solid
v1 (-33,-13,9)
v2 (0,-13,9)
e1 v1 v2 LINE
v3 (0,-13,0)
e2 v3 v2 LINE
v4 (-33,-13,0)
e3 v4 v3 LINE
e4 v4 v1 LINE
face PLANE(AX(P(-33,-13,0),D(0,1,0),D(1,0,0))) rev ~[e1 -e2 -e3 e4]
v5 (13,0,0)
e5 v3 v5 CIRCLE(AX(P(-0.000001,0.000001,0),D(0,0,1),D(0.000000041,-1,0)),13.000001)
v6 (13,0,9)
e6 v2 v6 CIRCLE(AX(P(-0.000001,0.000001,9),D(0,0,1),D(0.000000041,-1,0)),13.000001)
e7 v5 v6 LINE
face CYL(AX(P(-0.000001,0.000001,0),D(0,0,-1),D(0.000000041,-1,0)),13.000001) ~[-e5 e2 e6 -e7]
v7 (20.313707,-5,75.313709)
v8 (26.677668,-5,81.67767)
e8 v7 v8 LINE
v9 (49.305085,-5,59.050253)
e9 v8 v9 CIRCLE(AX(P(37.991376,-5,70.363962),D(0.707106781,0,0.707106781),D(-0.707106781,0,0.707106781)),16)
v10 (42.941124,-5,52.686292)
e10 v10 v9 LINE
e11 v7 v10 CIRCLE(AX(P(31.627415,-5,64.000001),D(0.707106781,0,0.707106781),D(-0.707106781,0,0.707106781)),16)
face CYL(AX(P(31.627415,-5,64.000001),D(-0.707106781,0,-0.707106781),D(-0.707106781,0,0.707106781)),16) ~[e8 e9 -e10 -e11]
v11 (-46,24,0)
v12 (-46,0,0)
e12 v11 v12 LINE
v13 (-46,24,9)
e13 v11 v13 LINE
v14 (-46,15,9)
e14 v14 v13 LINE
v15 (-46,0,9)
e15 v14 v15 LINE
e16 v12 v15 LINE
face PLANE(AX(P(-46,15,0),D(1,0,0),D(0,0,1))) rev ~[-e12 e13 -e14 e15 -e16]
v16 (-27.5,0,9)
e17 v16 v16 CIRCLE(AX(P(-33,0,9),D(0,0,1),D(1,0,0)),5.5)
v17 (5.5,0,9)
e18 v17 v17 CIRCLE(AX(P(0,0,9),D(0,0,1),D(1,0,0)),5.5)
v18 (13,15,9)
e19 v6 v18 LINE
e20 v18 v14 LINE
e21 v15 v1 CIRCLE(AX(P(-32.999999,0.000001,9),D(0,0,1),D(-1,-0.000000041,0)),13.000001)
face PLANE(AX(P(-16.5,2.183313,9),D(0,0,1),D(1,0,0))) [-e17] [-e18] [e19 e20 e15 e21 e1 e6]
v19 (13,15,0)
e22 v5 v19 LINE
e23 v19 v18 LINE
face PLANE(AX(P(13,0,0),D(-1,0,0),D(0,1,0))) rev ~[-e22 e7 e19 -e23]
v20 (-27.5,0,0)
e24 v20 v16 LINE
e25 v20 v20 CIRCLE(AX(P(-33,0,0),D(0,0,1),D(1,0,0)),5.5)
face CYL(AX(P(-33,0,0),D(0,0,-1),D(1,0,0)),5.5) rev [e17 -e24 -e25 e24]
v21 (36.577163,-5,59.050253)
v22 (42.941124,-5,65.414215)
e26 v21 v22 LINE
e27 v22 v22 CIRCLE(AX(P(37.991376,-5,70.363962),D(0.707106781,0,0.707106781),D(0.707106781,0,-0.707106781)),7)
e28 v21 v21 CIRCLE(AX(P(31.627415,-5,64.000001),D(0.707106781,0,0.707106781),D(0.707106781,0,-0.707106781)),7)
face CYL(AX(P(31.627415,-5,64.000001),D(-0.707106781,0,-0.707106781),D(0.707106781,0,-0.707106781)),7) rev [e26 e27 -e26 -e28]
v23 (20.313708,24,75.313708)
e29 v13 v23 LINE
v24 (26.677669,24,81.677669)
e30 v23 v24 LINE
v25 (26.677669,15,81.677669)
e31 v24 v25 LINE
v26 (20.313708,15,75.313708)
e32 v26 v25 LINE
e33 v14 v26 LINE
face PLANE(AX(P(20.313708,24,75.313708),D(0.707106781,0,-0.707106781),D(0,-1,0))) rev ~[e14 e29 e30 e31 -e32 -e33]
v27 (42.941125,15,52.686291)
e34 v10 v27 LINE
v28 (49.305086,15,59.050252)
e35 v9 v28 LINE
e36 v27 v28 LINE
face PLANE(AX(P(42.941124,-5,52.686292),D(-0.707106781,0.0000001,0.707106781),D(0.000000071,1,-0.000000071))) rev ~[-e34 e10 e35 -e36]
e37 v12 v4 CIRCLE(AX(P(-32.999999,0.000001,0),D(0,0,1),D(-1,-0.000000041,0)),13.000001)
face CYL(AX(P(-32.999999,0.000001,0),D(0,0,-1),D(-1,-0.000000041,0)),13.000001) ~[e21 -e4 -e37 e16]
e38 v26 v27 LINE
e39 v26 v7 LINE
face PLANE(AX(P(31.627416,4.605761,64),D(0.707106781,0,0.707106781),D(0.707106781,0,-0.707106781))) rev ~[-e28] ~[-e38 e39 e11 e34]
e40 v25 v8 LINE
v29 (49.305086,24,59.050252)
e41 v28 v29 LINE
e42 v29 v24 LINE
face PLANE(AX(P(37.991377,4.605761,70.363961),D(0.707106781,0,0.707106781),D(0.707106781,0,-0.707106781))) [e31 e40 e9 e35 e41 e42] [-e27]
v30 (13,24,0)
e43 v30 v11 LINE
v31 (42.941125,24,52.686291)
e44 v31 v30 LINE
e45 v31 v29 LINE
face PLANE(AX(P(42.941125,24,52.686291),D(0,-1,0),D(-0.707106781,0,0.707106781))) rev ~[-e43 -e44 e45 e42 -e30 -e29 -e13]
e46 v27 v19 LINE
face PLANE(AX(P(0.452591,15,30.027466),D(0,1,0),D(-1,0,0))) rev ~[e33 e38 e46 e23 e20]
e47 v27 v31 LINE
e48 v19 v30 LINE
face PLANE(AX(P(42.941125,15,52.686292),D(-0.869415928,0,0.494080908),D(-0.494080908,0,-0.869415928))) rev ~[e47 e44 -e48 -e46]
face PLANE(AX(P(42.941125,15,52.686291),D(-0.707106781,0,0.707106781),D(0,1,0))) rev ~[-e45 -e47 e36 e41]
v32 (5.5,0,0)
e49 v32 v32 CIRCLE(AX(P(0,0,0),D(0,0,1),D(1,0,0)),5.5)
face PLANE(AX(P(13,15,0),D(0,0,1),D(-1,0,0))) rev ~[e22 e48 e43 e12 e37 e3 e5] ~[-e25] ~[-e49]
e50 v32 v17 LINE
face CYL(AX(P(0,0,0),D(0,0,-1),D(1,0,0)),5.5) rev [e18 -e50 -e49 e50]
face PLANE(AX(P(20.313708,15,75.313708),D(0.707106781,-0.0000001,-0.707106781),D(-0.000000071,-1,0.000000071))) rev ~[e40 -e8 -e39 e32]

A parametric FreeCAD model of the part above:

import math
import FreeCAD as App
import Part
import Sketcher

V = App.Vector
Q = App.Units.Quantity

doc = App.newDocument("Part")
body = doc.addObject("PartDesign::Body", "Body")

# Sketch on XY plane
sketch1 = doc.addObject("Sketcher::SketchObject", "Sketch")
body.addObject(sketch1)
sketch1.AttachmentSupport = (doc.XY_Plane, [""])
sketch1.MapMode = "FlatFace"
sketch1.addGeometry(Part.LineSegment(V(-46, 15, 0), V(-46, 0, 0)), False)
sketch1.addGeometry(Part.ArcOfCircle(Part.Circle(V(-32.999999, 0.000001, 0), V(0, 0, 1), 13.000001), math.radians(-179.999998), math.radians(-90.000002)), False)
sketch1.addGeometry(Part.LineSegment(V(-33, -13, 0), V(0, -13, 0)), False)
sketch1.addGeometry(Part.ArcOfCircle(Part.Circle(V(-0.000001, 0.000001, 0), V(0, 0, 1), 13.000001), math.radians(-89.999998), math.radians(-0.000002)), False)
sketch1.addGeometry(Part.LineSegment(V(13, 0, 0), V(13, 15, 0)), False)
sketch1.addGeometry(Part.LineSegment(V(13, 15, 0), V(-46, 15, 0)), False)
sketch1.addGeometry(Part.Circle(V(-33, 0, 0), V(0, 0, 1), 5.5), False)
sketch1.addGeometry(Part.Circle(V(0, 0, 0), V(0, 0, 1), 5.5), False)
sketch1.addConstraint(Sketcher.Constraint("Tangent", 0, 2, 1, 1))
sketch1.addConstraint(Sketcher.Constraint("Tangent", 1, 2, 2, 1))
sketch1.addConstraint(Sketcher.Constraint("Tangent", 2, 2, 3, 1))
sketch1.addConstraint(Sketcher.Constraint("Tangent", 3, 2, 4, 1))
sketch1.addConstraint(Sketcher.Constraint("Coincident", 4, 2, 5, 1))
sketch1.addConstraint(Sketcher.Constraint("Coincident", 5, 2, 0, 1))
sketch1.addConstraint(Sketcher.Constraint("Vertical", 0))
sketch1.addConstraint(Sketcher.Constraint("Horizontal", 2))
sketch1.addConstraint(Sketcher.Constraint("Vertical", 4))
sketch1.addConstraint(Sketcher.Constraint("Horizontal", 5))
sketch1.addConstraint(Sketcher.Constraint("Coincident", 3, 3, -1, 1))
sketch1.addConstraint(Sketcher.Constraint("Coincident", 7, 3, -1, 1))
sketch1.addConstraint(Sketcher.Constraint("Coincident", 6, 3, 1, 3))
sketch1.addConstraint(Sketcher.Constraint("Equal", 1, 3))
sketch1.addConstraint(Sketcher.Constraint("Equal", 6, 7))
sketch1.addConstraint(Sketcher.Constraint("Diameter", 6, 11.0))
sketch1.addConstraint(Sketcher.Constraint("Radius", 1, 13.000001))
sketch1.addConstraint(Sketcher.Constraint("DistanceX", 2, 1, 2, 2, 33.0))
sketch1.addConstraint(Sketcher.Constraint("DistanceY", 0, 2, 0, 1, 15.0))
pad1 = doc.addObject("PartDesign::Pad", "Pad")
body.addObject(pad1)
pad1.Profile = sketch1
pad1.Length = 9

# Sketch on XZ plane
sketch2 = doc.addObject("Sketcher::SketchObject", "Sketch001")
body.addObject(sketch2)
sketch2.AttachmentSupport = (doc.XZ_Plane, [""])
sketch2.MapMode = "FlatFace"
sketch2.AttachmentOffset = App.Placement(V(0, 0, -15), App.Rotation())
sketch2.addGeometry(Part.LineSegment(V(-46, 0, 0), V(-46, 9, 0)), False)
sketch2.addGeometry(Part.LineSegment(V(-46, 9, 0), V(20.313708, 75.313708, 0)), False)
sketch2.addGeometry(Part.LineSegment(V(20.313708, 75.313708, 0), V(42.941125, 52.686292, 0)), False)
sketch2.addGeometry(Part.LineSegment(V(42.941125, 52.686292, 0), V(13, 0, 0)), False)
sketch2.addGeometry(Part.LineSegment(V(13, 0, 0), V(-46, 0, 0)), False)
sketch2.addConstraint(Sketcher.Constraint("Coincident", 0, 2, 1, 1))
sketch2.addConstraint(Sketcher.Constraint("Coincident", 1, 2, 2, 1))
sketch2.addConstraint(Sketcher.Constraint("Coincident", 2, 2, 3, 1))
sketch2.addConstraint(Sketcher.Constraint("Coincident", 3, 2, 4, 1))
sketch2.addConstraint(Sketcher.Constraint("Coincident", 4, 2, 0, 1))
sketch2.addConstraint(Sketcher.Constraint("Vertical", 0))
sketch2.addConstraint(Sketcher.Constraint("Horizontal", 4))
sketch2.addConstraint(Sketcher.Constraint("PointOnObject", 3, 2, -1))
sketch2.addConstraint(Sketcher.Constraint("Perpendicular", 1, 2))
sketch2.addConstraint(Sketcher.Constraint("DistanceX", 4, 2, 4, 1, 59.0))
sketch2.addConstraint(Sketcher.Constraint("DistanceY", 0, 1, 0, 2, 9.0))
sketch2.addConstraint(Sketcher.Constraint("Angle", 1, Q("45 deg")))
sketch2.addConstraint(Sketcher.Constraint("Distance", 2, 31.999999))
sketch2.addConstraint(Sketcher.Constraint("DistanceX", 0, 2, -1, 1, 46.0))
sketch2.addConstraint(Sketcher.Constraint("Distance", 3, 60.59964))
pad2 = doc.addObject("PartDesign::Pad", "Pad001")
body.addObject(pad2)
pad2.Profile = sketch2
pad2.Length = 9
pad2.Reversed = True

# Sketch on an angled plane
sketch3 = doc.addObject("Sketcher::SketchObject", "Sketch002")
body.addObject(sketch3)
sketch3.Placement = App.Placement(V(47.813708, 0, 47.813708), App.Rotation(V(0.707106781, 0, -0.707106781), V(0, 0.999999999, 0), V(0.707106781, 0, 0.707106781), "ZXY"))
sketch3.addGeometry(Part.LineSegment(V(-6.890873, 15, 0), V(-6.890873, 24, 0)), False)
sketch3.addGeometry(Part.LineSegment(V(-6.890873, 24, 0), V(-38.890873, 24, 0)), False)
sketch3.addGeometry(Part.LineSegment(V(-38.890873, 24, 0), V(-38.890873, 15, 0)), False)
sketch3.addGeometry(Part.LineSegment(V(-38.890873, 15, 0), V(-38.890875, -5, 0)), False)
sketch3.addGeometry(Part.ArcOfCircle(Part.Circle(V(-22.890875, -5, 0), V(0, 0, 1), 16), math.radians(180), math.radians(360)), False)
sketch3.addGeometry(Part.LineSegment(V(-6.890875, -5, 0), V(-6.890873, 15, 0)), False)
sketch3.addGeometry(Part.Circle(V(-22.890875, -5, 0), V(0, 0, 1), 7), False)
sketch3.addConstraint(Sketcher.Constraint("Coincident", 0, 2, 1, 1))
sketch3.addConstraint(Sketcher.Constraint("Coincident", 1, 2, 2, 1))
sketch3.addConstraint(Sketcher.Constraint("Coincident", 2, 2, 3, 1))
sketch3.addConstraint(Sketcher.Constraint("Tangent", 3, 2, 4, 1))
sketch3.addConstraint(Sketcher.Constraint("Tangent", 4, 2, 5, 1))
sketch3.addConstraint(Sketcher.Constraint("Coincident", 5, 2, 0, 1))
sketch3.addConstraint(Sketcher.Constraint("Vertical", 0))
sketch3.addConstraint(Sketcher.Constraint("Horizontal", 1))
sketch3.addConstraint(Sketcher.Constraint("Vertical", 2))
sketch3.addConstraint(Sketcher.Constraint("Coincident", 6, 3, 4, 3))
sketch3.addConstraint(Sketcher.Constraint("Parallel", 3, 5))
sketch3.addConstraint(Sketcher.Constraint("Horizontal", 6, 3, 3, 2))
sketch3.addConstraint(Sketcher.Constraint("Horizontal", 2, 2, 5, 2))
sketch3.addConstraint(Sketcher.Constraint("Diameter", 6, 14.0))
sketch3.addConstraint(Sketcher.Constraint("Radius", 4, 16.0))
sketch3.addConstraint(Sketcher.Constraint("DistanceY", 0, 1, 0, 2, 9.0))
sketch3.addConstraint(Sketcher.Constraint("Distance", 3, 20.0))
sketch3.addConstraint(Sketcher.Constraint("DistanceY", 4, 3, -1, 1, 5.0))
sketch3.addConstraint(Sketcher.Constraint("DistanceX", 4, 3, -1, 1, 22.890875))
pad3 = doc.addObject("PartDesign::Pad", "Pad002")
body.addObject(pad3)
pad3.Profile = sketch3
pad3.Length = 9

doc.recompute()
